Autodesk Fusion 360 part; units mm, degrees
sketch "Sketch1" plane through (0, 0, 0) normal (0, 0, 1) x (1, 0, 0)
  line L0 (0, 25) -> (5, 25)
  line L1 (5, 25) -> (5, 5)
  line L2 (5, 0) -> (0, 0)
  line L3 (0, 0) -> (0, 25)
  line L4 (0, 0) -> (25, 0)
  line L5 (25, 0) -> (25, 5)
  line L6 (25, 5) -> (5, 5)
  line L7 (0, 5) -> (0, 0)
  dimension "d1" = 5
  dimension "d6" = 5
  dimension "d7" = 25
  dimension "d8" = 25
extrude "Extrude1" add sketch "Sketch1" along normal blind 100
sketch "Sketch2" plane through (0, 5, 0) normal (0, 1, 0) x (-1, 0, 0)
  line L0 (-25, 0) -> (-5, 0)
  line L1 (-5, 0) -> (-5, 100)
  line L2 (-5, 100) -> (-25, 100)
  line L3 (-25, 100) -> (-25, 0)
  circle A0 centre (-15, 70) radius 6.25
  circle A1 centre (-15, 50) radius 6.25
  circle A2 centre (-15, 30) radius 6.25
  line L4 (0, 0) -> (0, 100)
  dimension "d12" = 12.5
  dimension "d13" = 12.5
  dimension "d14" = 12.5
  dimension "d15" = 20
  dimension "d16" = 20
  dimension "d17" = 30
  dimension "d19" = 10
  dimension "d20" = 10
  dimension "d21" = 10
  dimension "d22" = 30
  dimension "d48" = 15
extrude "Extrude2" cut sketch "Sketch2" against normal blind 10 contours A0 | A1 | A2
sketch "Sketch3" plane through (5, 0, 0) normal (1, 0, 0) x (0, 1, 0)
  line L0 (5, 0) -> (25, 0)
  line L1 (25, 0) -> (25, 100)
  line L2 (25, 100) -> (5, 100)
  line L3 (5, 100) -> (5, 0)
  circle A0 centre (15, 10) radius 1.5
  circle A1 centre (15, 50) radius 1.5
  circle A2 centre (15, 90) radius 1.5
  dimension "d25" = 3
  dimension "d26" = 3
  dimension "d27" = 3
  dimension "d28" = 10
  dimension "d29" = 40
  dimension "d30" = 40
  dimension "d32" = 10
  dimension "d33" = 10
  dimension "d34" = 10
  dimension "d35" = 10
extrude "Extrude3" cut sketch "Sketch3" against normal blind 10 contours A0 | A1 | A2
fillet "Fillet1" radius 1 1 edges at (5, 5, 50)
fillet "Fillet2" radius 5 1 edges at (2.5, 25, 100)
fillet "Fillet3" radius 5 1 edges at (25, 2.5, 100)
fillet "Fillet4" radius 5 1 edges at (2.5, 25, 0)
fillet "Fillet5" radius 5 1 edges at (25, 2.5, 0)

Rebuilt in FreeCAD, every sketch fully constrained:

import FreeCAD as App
import Part
import Sketcher
from FreeCAD import Vector
Q = App.Units.Quantity


def edges_at(feature, points):
    """Names of the edges that pass closest to the given points."""
    edges = feature.Shape.Edges
    near = lambda p: min(range(len(edges)), key=lambda i: edges[i].distToShape(Part.Vertex(*p))[0])
    return sorted({f"Edge{near(p) + 1}" for p in points})


def add_polygon(sketch, points):
    """Adds a closed chain of lines whose ends are joined by coincident constraints."""
    first, n = sketch.GeometryCount, len(points)
    for a, b in zip(points, points[1:] + points[:1]):
        sketch.addGeometry(Part.LineSegment(App.Vector(*a, 0), App.Vector(*b, 0)), False)
    for i in range(n):
        sketch.addConstraint(Sketcher.Constraint("Coincident", first + i, 2, first + (i + 1) % n, 1))

doc = App.newDocument("Part")
params = doc.addObject("Spreadsheet::Sheet", "Params")
for row, (alias, value) in enumerate([
    ("sketch1_width", "5 mm"),
    ("sketch1_width2", "25 mm"),
    ("pad1_length", "100 mm"),
    ("sketch2_diameter", "12.5 mm"),
    ("pocket1_length", "10 mm"),
    ("sketch3_diameter", "3 mm"),
    ("pocket2_length", "10 mm"),
    ("fillet_radius", "1 mm"),
    ("fillet2_radius", "5 mm"),
    ("fillet3_radius", "5 mm"),
    ("fillet4_radius", "5 mm"),
    ("fillet5_radius", "5 mm"),
], start=1):
    params.set(f"A{row}", alias)
    params.set(f"B{row}", "=" + value)
    params.setAlias(f"B{row}", alias)

body = doc.addObject("PartDesign::Body", "Body")

# Sketch on XY plane
sketch1 = doc.addObject("Sketcher::SketchObject", "Sketch")
body.addObject(sketch1)
sketch1.AttachmentSupport = (doc.XY_Plane, [""])
sketch1.MapMode = "FlatFace"
add_polygon(sketch1, [(5, 25), (0, 25), (0, 0), (25, 0), (25, 5), (5, 5)])  # lines 0-5
sketch1.addConstraint([
    Sketcher.Constraint("Horizontal", 0),
    Sketcher.Constraint("Vertical", 1),
    Sketcher.Constraint("Horizontal", 2),
    Sketcher.Constraint("Vertical", 3),
    Sketcher.Constraint("Horizontal", 4),
    Sketcher.Constraint("Vertical", 5),
    Sketcher.Constraint("Coincident", 1, 2, -1, 1),
    Sketcher.Constraint("Equal", 2, 1),
    Sketcher.Constraint("Equal", 0, 3),
    Sketcher.Constraint("DistanceX", 0, 2, 0, 1, Q("5 mm")),
    Sketcher.Constraint("DistanceX", 2, 1, 2, 2, Q("25 mm")),
])
sketch1.setExpression("Constraints[15]", "Params.sketch1_width")
sketch1.setExpression("Constraints[16]", "Params.sketch1_width2")
pad1 = doc.addObject("PartDesign::Pad", "Pad")
body.addObject(pad1)
pad1.Profile = sketch1
pad1.setExpression("Length", "Params.pad1_length")

# Sketch on XZ plane
sketch2 = doc.addObject("Sketcher::SketchObject", "Sketch001")
body.addObject(sketch2)
sketch2.AttachmentSupport = (doc.XZ_Plane, [""])
sketch2.MapMode = "FlatFace"
sketch2.AttachmentOffset = App.Placement(Vector(0, 0, -5), App.Rotation())
sketch2.addGeometry([
    Part.Circle(Vector(15, 70, 0), Vector(0, 0, 1), 6),
    Part.Circle(Vector(15, 50, 0), Vector(0, 0, 1), 6),
    Part.Circle(Vector(15, 30, 0), Vector(0, 0, 1), 6),
], False)
sketch2.addConstraint([
    Sketcher.Constraint("Equal", 0, 1),
    Sketcher.Constraint("Equal", 1, 2),
    Sketcher.Constraint("Vertical", 0, 3, 1, 3),
    Sketcher.Constraint("Vertical", 1, 3, 2, 3),
    Sketcher.Constraint("Diameter", 0, Q("12.5 mm")),
    Sketcher.Constraint("DistanceX", -1, 1, 0, 3, Q("15 mm")),
    Sketcher.Constraint("DistanceY", -1, 1, 2, 3, Q("30 mm")),
    Sketcher.Constraint("DistanceY", 1, 3, 0, 3, Q("20 mm")),
    Sketcher.Constraint("DistanceY", 2, 3, 1, 3, Q("20 mm")),
])
sketch2.setExpression("Constraints[4]", "Params.sketch2_diameter")
pocket1 = doc.addObject("PartDesign::Pocket", "Pocket")
body.addObject(pocket1)
pocket1.Profile = sketch2
pocket1.setExpression("Length", "Params.pocket1_length")
pocket1.Reversed = True

# Sketch on YZ plane
sketch3 = doc.addObject("Sketcher::SketchObject", "Sketch002")
body.addObject(sketch3)
sketch3.AttachmentSupport = (doc.YZ_Plane, [""])
sketch3.MapMode = "FlatFace"
sketch3.AttachmentOffset = App.Placement(Vector(0, 0, 5), App.Rotation())
sketch3.addGeometry([
    Part.Circle(Vector(15, 10, 0), Vector(0, 0, 1), 1.5),
    Part.Circle(Vector(15, 50, 0), Vector(0, 0, 1), 1.5),
    Part.Circle(Vector(15, 90, 0), Vector(0, 0, 1), 1.5),
], False)
sketch3.addConstraint([
    Sketcher.Constraint("Equal", 0, 1),
    Sketcher.Constraint("Equal", 1, 2),
    Sketcher.Constraint("Vertical", 0, 3, 1, 3),
    Sketcher.Constraint("Vertical", 1, 3, 2, 3),
    Sketcher.Constraint("Diameter", 0, Q("3 mm")),
    Sketcher.Constraint("DistanceY", -1, 1, 0, 3, Q("10 mm")),
    Sketcher.Constraint("DistanceY", 0, 3, 1, 3, Q("40 mm")),
    Sketcher.Constraint("DistanceY", 1, 3, 2, 3, Q("40 mm")),
    Sketcher.Constraint("DistanceX", -1, 1, 0, 3, Q("15 mm")),
])
sketch3.setExpression("Constraints[4]", "Params.sketch3_diameter")
pocket2 = doc.addObject("PartDesign::Pocket", "Pocket001")
body.addObject(pocket2)
pocket2.Profile = sketch3
pocket2.setExpression("Length", "Params.pocket2_length")
doc.recompute()

fillet = doc.addObject("PartDesign::Fillet", "Fillet")
body.addObject(fillet)
fillet.Base = (pocket2, edges_at(pocket2, [(5, 5, 50)]))
fillet.setExpression("Radius", "Params.fillet_radius")
doc.recompute()

fillet2 = doc.addObject("PartDesign::Fillet", "Fillet001")
body.addObject(fillet2)
fillet2.Base = (fillet, edges_at(fillet, [(2.5, 25, 100)]))
fillet2.setExpression("Radius", "Params.fillet2_radius")
doc.recompute()

fillet3 = doc.addObject("PartDesign::Fillet", "Fillet002")
body.addObject(fillet3)
fillet3.Base = (fillet2, edges_at(fillet2, [(25, 2.5, 100)]))
fillet3.setExpression("Radius", "Params.fillet3_radius")
doc.recompute()

fillet4 = doc.addObject("PartDesign::Fillet", "Fillet003")
body.addObject(fillet4)
fillet4.Base = (fillet3, edges_at(fillet3, [(2.5, 25, 0)]))
fillet4.setExpression("Radius", "Params.fillet4_radius")
doc.recompute()

fillet5 = doc.addObject("PartDesign::Fillet", "Fillet004")
body.addObject(fillet5)
fillet5.Base = (fillet4, edges_at(fillet4, [(25, 2.5, 0)]))
fillet5.setExpression("Radius", "Params.fillet5_radius")

doc.recompute()
